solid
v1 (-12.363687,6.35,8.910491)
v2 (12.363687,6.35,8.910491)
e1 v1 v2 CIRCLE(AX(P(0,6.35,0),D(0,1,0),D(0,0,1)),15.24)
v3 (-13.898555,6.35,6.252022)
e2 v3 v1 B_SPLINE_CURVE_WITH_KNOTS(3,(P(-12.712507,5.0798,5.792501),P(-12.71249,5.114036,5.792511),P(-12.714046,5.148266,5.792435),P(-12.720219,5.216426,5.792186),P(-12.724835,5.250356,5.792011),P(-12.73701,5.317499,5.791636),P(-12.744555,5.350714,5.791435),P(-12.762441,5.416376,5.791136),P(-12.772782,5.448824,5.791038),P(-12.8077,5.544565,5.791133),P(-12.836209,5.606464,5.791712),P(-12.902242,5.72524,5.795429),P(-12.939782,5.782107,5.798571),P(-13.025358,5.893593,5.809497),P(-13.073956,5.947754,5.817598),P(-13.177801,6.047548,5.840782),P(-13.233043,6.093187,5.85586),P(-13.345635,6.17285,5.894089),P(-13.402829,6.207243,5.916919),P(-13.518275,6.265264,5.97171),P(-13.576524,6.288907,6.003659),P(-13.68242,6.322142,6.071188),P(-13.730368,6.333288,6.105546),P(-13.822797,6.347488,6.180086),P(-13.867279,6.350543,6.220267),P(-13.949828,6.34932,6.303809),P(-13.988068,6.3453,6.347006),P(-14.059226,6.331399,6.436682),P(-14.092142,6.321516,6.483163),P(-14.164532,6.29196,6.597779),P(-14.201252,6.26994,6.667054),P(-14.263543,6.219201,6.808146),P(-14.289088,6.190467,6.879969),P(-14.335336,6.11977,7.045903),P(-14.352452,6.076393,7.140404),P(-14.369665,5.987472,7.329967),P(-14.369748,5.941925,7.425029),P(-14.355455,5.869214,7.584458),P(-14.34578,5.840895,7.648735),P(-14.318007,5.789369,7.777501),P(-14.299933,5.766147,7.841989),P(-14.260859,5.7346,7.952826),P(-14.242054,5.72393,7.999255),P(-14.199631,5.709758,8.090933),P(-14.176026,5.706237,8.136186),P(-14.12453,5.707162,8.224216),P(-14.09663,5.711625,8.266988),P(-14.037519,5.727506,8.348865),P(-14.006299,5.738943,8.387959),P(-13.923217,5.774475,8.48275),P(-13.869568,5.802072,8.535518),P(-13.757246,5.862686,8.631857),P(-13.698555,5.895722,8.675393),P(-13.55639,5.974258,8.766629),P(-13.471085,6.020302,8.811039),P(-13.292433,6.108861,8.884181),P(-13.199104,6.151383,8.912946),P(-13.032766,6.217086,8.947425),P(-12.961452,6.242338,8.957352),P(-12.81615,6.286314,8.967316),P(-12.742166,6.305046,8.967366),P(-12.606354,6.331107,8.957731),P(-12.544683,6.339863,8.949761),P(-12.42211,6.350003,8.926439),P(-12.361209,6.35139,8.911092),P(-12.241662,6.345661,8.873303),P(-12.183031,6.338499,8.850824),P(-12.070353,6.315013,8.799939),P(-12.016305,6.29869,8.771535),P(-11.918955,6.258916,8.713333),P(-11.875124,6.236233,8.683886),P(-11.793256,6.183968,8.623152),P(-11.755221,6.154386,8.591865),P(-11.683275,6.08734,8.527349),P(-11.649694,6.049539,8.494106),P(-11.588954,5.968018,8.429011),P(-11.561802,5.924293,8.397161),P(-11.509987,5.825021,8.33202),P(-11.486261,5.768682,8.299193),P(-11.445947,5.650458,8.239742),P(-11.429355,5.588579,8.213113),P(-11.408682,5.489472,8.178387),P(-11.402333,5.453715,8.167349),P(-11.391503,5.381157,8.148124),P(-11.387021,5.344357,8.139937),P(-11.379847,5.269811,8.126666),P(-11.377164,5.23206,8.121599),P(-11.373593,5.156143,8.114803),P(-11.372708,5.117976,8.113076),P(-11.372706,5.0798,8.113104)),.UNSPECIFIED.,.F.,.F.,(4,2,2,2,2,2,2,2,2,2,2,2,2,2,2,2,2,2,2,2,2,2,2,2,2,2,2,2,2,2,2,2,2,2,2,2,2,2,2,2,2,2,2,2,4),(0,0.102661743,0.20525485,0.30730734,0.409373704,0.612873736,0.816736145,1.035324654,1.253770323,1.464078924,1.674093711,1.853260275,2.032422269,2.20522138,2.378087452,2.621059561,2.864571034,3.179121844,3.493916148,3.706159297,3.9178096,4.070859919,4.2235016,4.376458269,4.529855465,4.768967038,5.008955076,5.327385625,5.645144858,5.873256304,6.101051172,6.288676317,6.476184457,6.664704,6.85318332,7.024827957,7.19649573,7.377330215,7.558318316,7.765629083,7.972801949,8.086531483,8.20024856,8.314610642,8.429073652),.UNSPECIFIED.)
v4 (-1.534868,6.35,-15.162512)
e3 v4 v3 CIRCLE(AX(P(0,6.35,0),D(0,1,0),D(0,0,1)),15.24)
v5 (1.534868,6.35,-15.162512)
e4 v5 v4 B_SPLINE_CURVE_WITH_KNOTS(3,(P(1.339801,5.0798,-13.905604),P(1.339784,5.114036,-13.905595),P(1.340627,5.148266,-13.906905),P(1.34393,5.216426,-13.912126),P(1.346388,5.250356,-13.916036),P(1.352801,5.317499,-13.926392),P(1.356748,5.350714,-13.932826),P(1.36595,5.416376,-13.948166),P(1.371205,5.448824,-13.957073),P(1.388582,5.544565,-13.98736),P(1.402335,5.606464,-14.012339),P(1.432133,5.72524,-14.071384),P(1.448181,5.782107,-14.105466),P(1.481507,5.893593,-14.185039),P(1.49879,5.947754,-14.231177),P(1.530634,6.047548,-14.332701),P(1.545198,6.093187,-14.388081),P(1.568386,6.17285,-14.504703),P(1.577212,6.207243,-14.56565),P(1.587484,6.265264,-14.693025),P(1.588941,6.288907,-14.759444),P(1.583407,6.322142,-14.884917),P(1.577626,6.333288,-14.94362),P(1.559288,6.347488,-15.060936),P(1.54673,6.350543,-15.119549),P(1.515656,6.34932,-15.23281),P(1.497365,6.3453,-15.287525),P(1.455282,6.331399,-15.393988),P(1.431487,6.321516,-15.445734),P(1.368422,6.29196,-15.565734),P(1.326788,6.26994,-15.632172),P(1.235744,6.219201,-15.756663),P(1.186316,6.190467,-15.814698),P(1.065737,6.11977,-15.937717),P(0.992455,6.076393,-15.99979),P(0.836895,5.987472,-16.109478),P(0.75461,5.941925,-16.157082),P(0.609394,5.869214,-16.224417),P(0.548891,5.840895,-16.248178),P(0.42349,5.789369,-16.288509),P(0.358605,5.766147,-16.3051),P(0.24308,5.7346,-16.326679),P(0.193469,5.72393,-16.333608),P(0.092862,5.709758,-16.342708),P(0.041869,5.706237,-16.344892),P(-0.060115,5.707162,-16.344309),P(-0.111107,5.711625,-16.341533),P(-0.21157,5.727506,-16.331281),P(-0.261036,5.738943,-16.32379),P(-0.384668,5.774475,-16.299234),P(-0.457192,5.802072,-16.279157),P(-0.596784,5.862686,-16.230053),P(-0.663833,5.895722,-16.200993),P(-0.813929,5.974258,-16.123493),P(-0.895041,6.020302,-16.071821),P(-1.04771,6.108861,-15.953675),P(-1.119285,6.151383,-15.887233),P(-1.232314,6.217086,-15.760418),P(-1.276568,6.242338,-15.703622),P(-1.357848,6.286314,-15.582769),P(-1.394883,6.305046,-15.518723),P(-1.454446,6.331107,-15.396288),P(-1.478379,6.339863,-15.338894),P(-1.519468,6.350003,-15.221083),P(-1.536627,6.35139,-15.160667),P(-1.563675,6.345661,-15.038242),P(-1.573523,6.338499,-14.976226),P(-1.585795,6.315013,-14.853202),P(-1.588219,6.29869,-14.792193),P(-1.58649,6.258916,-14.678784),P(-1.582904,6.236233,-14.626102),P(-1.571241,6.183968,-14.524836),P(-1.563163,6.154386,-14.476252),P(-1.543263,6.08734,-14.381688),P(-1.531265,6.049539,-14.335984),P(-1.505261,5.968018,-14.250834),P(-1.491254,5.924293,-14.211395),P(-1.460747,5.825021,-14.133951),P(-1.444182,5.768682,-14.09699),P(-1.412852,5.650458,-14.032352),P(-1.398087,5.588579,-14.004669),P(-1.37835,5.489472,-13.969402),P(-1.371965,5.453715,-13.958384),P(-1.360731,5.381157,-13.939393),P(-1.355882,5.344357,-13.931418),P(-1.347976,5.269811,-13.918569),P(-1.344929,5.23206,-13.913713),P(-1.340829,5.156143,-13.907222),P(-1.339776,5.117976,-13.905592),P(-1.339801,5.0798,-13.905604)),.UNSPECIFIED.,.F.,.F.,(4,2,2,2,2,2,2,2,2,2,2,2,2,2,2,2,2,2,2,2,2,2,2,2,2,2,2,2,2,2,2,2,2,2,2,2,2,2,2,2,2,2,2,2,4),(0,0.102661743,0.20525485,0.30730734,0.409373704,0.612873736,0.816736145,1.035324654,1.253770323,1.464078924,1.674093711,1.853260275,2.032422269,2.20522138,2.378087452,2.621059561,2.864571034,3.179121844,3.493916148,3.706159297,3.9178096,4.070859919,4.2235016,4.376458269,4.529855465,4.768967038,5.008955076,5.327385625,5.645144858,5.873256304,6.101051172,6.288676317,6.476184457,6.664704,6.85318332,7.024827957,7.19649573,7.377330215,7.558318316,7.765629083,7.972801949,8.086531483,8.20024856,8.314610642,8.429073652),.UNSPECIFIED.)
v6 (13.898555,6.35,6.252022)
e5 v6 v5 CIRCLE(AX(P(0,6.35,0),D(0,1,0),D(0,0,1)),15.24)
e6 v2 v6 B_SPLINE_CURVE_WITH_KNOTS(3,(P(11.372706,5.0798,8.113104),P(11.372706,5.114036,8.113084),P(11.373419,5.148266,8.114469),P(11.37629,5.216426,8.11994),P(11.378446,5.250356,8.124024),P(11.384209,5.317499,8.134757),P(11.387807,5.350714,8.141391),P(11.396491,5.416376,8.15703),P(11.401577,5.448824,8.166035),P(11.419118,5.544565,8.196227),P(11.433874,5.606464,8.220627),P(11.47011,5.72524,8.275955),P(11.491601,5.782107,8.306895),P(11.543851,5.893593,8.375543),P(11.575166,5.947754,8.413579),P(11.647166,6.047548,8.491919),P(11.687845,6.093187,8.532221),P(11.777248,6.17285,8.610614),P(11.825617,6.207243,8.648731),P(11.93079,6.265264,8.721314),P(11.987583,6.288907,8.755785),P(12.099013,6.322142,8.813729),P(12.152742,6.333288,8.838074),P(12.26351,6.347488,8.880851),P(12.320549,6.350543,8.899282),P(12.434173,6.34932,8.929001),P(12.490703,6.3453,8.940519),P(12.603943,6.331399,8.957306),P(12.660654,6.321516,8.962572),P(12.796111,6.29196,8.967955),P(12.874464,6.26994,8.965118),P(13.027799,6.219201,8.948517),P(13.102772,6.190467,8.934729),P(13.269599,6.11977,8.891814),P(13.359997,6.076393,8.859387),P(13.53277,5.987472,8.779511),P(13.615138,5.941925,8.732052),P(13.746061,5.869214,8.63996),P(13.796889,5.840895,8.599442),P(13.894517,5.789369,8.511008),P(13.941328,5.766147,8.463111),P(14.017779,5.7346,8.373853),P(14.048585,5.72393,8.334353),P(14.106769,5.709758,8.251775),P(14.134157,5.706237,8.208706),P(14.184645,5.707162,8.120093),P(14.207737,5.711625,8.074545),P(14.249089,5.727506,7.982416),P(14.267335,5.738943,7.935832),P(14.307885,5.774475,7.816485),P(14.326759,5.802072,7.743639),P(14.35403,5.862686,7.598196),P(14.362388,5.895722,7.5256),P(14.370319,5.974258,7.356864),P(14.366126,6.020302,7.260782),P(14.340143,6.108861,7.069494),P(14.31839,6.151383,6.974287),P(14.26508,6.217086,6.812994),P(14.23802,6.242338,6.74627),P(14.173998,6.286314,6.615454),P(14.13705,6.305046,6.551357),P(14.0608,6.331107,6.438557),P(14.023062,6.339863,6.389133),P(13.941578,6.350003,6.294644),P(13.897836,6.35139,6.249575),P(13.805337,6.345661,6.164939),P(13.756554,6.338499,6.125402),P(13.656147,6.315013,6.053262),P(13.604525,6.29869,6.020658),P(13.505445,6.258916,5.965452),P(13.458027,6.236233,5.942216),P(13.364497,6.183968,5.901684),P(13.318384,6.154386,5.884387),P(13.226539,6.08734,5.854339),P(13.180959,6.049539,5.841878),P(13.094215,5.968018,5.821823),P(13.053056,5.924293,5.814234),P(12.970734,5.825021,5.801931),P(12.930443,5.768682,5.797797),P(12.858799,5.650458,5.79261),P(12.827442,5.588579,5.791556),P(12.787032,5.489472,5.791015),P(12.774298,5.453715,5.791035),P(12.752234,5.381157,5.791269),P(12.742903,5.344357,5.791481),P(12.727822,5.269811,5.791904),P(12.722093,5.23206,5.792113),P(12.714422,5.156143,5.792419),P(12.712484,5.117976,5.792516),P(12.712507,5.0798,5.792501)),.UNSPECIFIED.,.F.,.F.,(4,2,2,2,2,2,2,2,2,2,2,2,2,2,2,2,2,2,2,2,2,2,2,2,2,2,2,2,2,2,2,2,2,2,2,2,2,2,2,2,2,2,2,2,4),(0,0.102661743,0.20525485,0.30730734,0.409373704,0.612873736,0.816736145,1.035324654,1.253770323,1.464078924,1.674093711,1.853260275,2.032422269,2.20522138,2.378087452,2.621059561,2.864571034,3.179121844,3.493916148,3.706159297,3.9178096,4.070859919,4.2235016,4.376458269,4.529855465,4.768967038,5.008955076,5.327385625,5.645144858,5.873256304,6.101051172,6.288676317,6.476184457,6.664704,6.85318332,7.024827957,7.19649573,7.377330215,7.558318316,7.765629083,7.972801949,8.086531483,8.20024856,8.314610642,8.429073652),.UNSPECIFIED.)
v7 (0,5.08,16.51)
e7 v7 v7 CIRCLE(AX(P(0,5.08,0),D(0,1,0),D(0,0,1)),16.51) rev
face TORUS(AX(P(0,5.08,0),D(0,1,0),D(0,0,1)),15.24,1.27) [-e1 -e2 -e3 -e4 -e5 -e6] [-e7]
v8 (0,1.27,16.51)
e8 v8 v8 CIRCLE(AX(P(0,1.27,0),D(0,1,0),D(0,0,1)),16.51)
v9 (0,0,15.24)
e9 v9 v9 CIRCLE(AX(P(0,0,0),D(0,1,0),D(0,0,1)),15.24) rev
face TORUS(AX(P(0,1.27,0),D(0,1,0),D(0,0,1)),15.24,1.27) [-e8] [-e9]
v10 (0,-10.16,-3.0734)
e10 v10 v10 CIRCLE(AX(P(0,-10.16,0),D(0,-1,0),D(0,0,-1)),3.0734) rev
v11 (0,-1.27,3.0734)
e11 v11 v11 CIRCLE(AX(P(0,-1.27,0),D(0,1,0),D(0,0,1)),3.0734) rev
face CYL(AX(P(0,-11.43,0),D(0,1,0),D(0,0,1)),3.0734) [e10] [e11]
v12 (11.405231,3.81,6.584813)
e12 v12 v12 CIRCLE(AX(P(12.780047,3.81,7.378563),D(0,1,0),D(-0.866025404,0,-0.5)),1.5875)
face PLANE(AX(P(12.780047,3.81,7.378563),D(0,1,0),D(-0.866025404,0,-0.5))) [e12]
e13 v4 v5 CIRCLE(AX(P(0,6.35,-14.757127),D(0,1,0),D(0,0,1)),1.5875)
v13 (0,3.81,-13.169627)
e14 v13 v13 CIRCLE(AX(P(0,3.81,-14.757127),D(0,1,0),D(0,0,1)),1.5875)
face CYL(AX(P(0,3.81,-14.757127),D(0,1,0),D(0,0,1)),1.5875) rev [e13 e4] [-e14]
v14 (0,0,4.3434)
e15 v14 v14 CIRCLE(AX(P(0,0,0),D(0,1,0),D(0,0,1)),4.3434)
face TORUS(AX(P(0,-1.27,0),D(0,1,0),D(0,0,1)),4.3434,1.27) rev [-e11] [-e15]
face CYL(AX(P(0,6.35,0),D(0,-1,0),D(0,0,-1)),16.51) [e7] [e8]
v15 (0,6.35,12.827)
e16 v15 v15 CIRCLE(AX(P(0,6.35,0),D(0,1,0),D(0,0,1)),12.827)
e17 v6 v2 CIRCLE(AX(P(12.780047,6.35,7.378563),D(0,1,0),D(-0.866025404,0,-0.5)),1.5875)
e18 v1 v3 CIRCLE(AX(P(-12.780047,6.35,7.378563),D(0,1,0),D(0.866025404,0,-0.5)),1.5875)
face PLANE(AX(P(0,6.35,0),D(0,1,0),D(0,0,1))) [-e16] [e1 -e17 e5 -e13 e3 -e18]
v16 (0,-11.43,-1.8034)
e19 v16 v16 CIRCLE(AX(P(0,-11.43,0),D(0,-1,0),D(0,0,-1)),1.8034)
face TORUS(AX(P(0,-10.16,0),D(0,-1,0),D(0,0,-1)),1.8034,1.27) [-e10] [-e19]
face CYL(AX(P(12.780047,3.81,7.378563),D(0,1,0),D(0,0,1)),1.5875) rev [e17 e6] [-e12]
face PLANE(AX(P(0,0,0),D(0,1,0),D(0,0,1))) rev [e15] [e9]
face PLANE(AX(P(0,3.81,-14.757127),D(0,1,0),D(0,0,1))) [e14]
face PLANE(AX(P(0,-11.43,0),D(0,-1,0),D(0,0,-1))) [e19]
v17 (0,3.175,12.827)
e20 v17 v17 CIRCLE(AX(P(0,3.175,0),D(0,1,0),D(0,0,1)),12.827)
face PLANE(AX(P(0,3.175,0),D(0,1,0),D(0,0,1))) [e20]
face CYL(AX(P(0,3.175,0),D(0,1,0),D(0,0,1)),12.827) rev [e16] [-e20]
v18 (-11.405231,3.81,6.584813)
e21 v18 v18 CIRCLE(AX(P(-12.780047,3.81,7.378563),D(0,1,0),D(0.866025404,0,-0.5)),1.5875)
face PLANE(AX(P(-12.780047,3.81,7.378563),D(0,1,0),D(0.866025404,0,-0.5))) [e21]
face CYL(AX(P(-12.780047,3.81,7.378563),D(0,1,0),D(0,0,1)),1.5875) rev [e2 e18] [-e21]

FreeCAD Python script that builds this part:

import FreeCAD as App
import Part
import Sketcher
from FreeCAD import Vector
Q = App.Units.Quantity


def edges_at(feature, points):
    """Names of the edges that pass closest to the given points."""
    edges = feature.Shape.Edges
    near = lambda p: min(range(len(edges)), key=lambda i: edges[i].distToShape(Part.Vertex(*p))[0])
    return sorted({f"Edge{near(p) + 1}" for p in points})

doc = App.newDocument("Part")
params = doc.addObject("Spreadsheet::Sheet", "Params")
for row, (alias, value) in enumerate([
    ("sketch1_diameter", "1.3 in"),
    ("pad1_length", "0.25 in"),
    ("sketch2_diameter", "1.01 in"),
    ("pocket1_length", "0.125 in"),
    ("fillet_radius", "0.05 in"),
    ("sketch3_diameter", "0.242 in"),
    ("pad2_length", "0.45 in"),
    ("fillet2_radius", "0.05 in"),
    ("sketch4_diameter", "0.125 in"),
    ("pocket2_length", "0.1 in"),
], start=1):
    params.set(f"A{row}", alias)
    params.set(f"B{row}", "=" + value)
    params.setAlias(f"B{row}", alias)

body = doc.addObject("PartDesign::Body", "Body")

# Sketch on XZ plane
sketch1 = doc.addObject("Sketcher::SketchObject", "Sketch")
body.addObject(sketch1)
sketch1.AttachmentSupport = (doc.XZ_Plane, [""])
sketch1.MapMode = "FlatFace"
sketch1.addGeometry(Part.Circle(Vector(0, 0, 0), Vector(0, 0, 1), 16.51), False)
sketch1.addConstraint(Sketcher.Constraint("Coincident", 0, 3, -1, 1))
sketch1.addConstraint(Sketcher.Constraint("Diameter", 0, Q("1.3 in")))
sketch1.setExpression("Constraints[1]", "Params.sketch1_diameter")
pad1 = doc.addObject("PartDesign::Pad", "Pad")
body.addObject(pad1)
pad1.Profile = sketch1
pad1.setExpression("Length", "Params.pad1_length")
pad1.Reversed = True

# Sketch on XZ plane
sketch2 = doc.addObject("Sketcher::SketchObject", "Sketch001")
body.addObject(sketch2)
sketch2.AttachmentSupport = (doc.XZ_Plane, [""])
sketch2.MapMode = "FlatFace"
sketch2.AttachmentOffset = App.Placement(Vector(0, 0, -0.25 * 25.4), App.Rotation())
sketch2.addGeometry(Part.Circle(Vector(0, 0, 0), Vector(0, 0, 1), 12.827), False)
sketch2.addConstraint(Sketcher.Constraint("Coincident", 0, 3, -1, 1))
sketch2.addConstraint(Sketcher.Constraint("Diameter", 0, Q("1.01 in")))
sketch2.setExpression("Constraints[1]", "Params.sketch2_diameter")
pocket1 = doc.addObject("PartDesign::Pocket", "Pocket")
body.addObject(pocket1)
pocket1.Profile = sketch2
pocket1.setExpression("Length", "Params.pocket1_length")
pocket1.Reversed = True
doc.recompute()

fillet = doc.addObject("PartDesign::Fillet", "Fillet")
body.addObject(fillet)
fillet.Base = (pocket1, edges_at(pocket1, [(0, 6.35, -16.51)]))
fillet.setExpression("Radius", "Params.fillet_radius")

# Sketch on XZ plane
sketch3 = doc.addObject("Sketcher::SketchObject", "Sketch002")
body.addObject(sketch3)
sketch3.AttachmentSupport = (doc.XZ_Plane, [""])
sketch3.MapMode = "FlatFace"
sketch3.addGeometry(Part.Circle(Vector(0, 0, 0), Vector(0, 0, 1), 3.0734), False)
sketch3.addConstraint(Sketcher.Constraint("Coincident", 0, 3, -1, 1))
sketch3.addConstraint(Sketcher.Constraint("Diameter", 0, Q("0.242 in")))
sketch3.setExpression("Constraints[1]", "Params.sketch3_diameter")
pad2 = doc.addObject("PartDesign::Pad", "Pad001")
body.addObject(pad2)
pad2.Profile = sketch3
pad2.setExpression("Length", "Params.pad2_length")
doc.recompute()

fillet2 = doc.addObject("PartDesign::Fillet", "Fillet001")
body.addObject(fillet2)
fillet2.Base = (pad2, edges_at(pad2, [(0, 0, 3.073), (0, -11.43, 3.073), (0, 0, -16.51)]))
fillet2.setExpression("Radius", "Params.fillet2_radius")

# Sketch on XZ plane
sketch4 = doc.addObject("Sketcher::SketchObject", "Sketch003")
body.addObject(sketch4)
sketch4.AttachmentSupport = (doc.XZ_Plane, [""])
sketch4.MapMode = "FlatFace"
sketch4.AttachmentOffset = App.Placement(Vector(0, 0, -0.25 * 25.4), App.Rotation())
sketch4.addGeometry(Part.Circle(Vector(0, -14.757127, 0), Vector(0, 0, 1), 1.5875), False)
sketch4.addConstraint(Sketcher.Constraint("PointOnObject", 0, 3, -2))
sketch4.addConstraint(Sketcher.Constraint("Diameter", 0, Q("0.125 in")))
sketch4.addConstraint(Sketcher.Constraint("DistanceY", 0, 3, -1, 1, Q("14.757127 mm")))
sketch4.setExpression("Constraints[1]", "Params.sketch4_diameter")
pocket2 = doc.addObject("PartDesign::Pocket", "Pocket001")
body.addObject(pocket2)
pocket2.Profile = sketch4
pocket2.setExpression("Length", "Params.pocket2_length")
pocket2.Reversed = True
doc.recompute()

polarpattern = doc.addObject("PartDesign::PolarPattern", "PolarPattern")
body.addObject(polarpattern)
polarpattern.Originals = [pocket2]
polarpattern.Axis = (doc.Y_Axis, [""])
polarpattern.Angle = 360
polarpattern.Occurrences = 3
body.Tip = polarpattern

doc.recompute()
